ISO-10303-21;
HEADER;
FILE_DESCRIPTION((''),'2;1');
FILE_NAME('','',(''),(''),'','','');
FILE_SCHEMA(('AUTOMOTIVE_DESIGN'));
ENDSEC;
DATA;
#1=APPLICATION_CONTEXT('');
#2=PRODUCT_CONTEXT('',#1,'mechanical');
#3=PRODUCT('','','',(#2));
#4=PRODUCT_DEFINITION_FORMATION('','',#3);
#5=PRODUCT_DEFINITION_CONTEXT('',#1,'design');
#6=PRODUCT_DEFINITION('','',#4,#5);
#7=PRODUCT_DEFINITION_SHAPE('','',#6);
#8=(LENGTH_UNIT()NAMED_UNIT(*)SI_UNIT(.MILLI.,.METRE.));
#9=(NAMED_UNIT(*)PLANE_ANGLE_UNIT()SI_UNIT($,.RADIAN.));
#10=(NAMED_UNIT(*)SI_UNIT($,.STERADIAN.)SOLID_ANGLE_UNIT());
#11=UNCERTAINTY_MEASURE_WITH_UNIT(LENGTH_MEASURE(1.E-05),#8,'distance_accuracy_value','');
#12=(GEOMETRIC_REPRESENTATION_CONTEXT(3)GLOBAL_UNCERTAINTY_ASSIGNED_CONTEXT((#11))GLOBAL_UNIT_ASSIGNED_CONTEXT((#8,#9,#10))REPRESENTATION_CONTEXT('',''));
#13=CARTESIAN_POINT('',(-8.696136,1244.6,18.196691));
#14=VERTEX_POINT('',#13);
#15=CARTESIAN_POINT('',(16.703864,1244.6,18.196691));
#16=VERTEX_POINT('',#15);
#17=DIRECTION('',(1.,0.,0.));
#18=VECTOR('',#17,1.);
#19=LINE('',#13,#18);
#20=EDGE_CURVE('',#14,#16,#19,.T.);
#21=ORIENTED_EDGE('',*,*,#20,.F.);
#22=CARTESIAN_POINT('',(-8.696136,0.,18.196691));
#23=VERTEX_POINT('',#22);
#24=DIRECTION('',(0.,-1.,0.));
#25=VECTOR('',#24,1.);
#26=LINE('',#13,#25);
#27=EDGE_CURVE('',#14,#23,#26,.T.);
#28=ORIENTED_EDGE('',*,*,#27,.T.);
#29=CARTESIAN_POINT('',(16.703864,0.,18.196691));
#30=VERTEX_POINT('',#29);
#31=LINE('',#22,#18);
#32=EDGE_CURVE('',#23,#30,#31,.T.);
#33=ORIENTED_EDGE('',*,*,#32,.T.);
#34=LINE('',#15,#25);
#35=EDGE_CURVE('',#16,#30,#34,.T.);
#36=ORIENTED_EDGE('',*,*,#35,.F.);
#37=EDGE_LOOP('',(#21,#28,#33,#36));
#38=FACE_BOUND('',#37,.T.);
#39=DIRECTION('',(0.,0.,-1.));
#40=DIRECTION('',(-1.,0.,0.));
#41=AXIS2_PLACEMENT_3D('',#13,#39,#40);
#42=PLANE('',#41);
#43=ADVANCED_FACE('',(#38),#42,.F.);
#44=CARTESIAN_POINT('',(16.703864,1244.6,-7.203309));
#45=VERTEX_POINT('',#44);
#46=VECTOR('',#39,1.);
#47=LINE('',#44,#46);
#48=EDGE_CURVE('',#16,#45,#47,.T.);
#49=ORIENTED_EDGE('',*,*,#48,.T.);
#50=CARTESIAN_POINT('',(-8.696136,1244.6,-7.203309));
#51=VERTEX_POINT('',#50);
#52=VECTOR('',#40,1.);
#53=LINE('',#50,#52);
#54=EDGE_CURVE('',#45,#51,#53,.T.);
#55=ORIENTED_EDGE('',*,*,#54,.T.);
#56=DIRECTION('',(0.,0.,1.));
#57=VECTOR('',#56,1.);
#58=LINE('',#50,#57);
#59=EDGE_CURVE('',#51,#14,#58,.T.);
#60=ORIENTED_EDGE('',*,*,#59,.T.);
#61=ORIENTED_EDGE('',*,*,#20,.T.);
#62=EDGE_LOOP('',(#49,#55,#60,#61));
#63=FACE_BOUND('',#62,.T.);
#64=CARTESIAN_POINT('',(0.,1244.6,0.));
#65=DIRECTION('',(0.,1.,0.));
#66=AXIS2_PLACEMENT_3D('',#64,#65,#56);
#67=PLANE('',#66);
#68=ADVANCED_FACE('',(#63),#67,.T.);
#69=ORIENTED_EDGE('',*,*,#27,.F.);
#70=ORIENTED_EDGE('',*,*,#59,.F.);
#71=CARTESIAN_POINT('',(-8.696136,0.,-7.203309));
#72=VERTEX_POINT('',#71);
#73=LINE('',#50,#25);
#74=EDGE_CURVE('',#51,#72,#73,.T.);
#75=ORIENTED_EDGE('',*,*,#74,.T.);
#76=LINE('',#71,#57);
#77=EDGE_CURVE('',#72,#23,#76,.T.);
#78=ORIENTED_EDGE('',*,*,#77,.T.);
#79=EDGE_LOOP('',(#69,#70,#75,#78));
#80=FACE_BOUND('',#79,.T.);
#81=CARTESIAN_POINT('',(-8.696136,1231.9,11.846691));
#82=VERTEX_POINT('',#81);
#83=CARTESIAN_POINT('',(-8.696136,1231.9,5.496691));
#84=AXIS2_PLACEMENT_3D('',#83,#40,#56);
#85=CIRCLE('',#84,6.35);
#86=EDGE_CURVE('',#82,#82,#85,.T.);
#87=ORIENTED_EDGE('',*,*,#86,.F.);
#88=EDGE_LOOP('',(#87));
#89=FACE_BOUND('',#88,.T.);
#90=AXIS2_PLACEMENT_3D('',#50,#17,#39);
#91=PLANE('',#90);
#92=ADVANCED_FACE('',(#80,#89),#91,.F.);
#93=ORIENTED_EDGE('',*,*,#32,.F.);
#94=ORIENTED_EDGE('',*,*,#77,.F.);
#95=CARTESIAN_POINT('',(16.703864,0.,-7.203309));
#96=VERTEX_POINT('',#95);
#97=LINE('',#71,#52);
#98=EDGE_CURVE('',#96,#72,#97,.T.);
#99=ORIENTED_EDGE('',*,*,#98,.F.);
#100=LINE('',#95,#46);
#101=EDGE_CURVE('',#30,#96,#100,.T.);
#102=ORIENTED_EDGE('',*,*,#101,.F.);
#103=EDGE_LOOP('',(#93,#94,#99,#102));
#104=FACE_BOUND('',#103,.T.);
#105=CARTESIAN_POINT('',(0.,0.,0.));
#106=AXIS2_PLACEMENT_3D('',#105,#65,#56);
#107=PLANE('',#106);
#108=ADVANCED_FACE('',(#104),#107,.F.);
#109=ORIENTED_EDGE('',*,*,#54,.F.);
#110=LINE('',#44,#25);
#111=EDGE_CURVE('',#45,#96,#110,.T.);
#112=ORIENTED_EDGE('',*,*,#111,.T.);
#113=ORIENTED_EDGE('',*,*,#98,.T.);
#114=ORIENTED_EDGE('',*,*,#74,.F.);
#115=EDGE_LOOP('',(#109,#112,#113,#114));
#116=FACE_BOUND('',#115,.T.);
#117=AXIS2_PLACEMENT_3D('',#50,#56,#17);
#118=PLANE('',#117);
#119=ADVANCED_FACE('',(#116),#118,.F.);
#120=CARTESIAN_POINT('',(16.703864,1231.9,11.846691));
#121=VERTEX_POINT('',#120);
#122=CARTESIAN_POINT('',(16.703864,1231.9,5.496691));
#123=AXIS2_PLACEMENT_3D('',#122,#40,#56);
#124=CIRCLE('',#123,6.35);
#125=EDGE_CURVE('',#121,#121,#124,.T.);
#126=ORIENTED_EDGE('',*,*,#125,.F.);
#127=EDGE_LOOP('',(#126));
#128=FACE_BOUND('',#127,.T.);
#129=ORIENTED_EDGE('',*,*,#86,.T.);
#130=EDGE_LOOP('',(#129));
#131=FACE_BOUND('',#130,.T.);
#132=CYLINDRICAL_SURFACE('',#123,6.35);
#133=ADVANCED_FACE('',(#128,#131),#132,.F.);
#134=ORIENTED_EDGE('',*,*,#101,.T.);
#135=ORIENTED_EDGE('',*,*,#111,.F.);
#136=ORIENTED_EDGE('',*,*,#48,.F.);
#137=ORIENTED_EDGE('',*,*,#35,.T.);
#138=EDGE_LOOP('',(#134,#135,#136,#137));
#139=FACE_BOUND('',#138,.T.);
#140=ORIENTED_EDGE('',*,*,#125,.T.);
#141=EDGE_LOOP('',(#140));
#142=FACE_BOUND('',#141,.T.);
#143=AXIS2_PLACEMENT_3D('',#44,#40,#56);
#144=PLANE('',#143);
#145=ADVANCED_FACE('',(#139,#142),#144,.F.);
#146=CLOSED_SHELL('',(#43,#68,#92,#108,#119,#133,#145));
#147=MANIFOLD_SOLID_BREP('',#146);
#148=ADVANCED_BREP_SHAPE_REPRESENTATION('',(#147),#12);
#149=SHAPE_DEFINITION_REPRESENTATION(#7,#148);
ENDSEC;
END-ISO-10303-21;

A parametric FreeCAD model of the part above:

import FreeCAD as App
import Part
import Sketcher
from FreeCAD import Vector
Q = App.Units.Quantity


def add_polygon(sketch, points):
    """Adds a closed chain of lines whose ends are joined by coincident constraints."""
    first, n = sketch.GeometryCount, len(points)
    for a, b in zip(points, points[1:] + points[:1]):
        sketch.addGeometry(Part.LineSegment(App.Vector(*a, 0), App.Vector(*b, 0)), False)
    for i in range(n):
        sketch.addConstraint(Sketcher.Constraint("Coincident", first + i, 2, first + (i + 1) % n, 1))

doc = App.newDocument("Part")
body = doc.addObject("PartDesign::Body", "Body")

sketch1 = doc.addObject("Sketcher::SketchObject", "Sketch")
body.addObject(sketch1)
sketch1.AttachmentSupport = (doc.XZ_Plane, [""])
sketch1.MapMode = "FlatFace"
add_polygon(sketch1, [(-9, -7), (-9, 18), (17, 18), (17, -7)])
sketch1.addConstraint([
    Sketcher.Constraint("Vertical", 0),
    Sketcher.Constraint("Horizontal", 1),
    Sketcher.Constraint("Vertical", 2),
    Sketcher.Constraint("Horizontal", 3),
    Sketcher.Constraint("Equal", 3, 0),
    Sketcher.Constraint("DistanceX", 1, 1, 1, 2, Q("1 in")),
    Sketcher.Constraint("DistanceY", -1, 1, 0, 2, 18.196691),
    Sketcher.Constraint("DistanceX", 0, 2, -1, 1, 8.696136),
])
pad1 = doc.addObject("PartDesign::Pad", "Pad")
body.addObject(pad1)
pad1.Profile = sketch1
pad1.Length = Q("49 in")
pad1.Reversed = True

sketch2 = doc.addObject("Sketcher::SketchObject", "Sketch001")
body.addObject(sketch2)
sketch2.AttachmentSupport = (doc.YZ_Plane, [""])
sketch2.MapMode = "FlatFace"
sketch2.AttachmentOffset = App.Placement(Vector(0, 0, -8.696136), App.Rotation())
sketch2.addGeometry(Part.Circle(Vector(1232, 5, 0), Vector(0, 0, 1), 6), False)
sketch2.addConstraint([
    Sketcher.Constraint("Diameter", 0, Q("0.5 in")),
    Sketcher.Constraint("DistanceX", -1, 1, 0, 3, Q("48.5 in")),
    Sketcher.Constraint("DistanceY", -1, 1, 0, 3, 5.496691),
])
pocket1 = doc.addObject("PartDesign::Pocket", "Pocket")
body.addObject(pocket1)
pocket1.Profile = sketch2
pocket1.Length = Q("1 in")
pocket1.Reversed = True

doc.recompute()
